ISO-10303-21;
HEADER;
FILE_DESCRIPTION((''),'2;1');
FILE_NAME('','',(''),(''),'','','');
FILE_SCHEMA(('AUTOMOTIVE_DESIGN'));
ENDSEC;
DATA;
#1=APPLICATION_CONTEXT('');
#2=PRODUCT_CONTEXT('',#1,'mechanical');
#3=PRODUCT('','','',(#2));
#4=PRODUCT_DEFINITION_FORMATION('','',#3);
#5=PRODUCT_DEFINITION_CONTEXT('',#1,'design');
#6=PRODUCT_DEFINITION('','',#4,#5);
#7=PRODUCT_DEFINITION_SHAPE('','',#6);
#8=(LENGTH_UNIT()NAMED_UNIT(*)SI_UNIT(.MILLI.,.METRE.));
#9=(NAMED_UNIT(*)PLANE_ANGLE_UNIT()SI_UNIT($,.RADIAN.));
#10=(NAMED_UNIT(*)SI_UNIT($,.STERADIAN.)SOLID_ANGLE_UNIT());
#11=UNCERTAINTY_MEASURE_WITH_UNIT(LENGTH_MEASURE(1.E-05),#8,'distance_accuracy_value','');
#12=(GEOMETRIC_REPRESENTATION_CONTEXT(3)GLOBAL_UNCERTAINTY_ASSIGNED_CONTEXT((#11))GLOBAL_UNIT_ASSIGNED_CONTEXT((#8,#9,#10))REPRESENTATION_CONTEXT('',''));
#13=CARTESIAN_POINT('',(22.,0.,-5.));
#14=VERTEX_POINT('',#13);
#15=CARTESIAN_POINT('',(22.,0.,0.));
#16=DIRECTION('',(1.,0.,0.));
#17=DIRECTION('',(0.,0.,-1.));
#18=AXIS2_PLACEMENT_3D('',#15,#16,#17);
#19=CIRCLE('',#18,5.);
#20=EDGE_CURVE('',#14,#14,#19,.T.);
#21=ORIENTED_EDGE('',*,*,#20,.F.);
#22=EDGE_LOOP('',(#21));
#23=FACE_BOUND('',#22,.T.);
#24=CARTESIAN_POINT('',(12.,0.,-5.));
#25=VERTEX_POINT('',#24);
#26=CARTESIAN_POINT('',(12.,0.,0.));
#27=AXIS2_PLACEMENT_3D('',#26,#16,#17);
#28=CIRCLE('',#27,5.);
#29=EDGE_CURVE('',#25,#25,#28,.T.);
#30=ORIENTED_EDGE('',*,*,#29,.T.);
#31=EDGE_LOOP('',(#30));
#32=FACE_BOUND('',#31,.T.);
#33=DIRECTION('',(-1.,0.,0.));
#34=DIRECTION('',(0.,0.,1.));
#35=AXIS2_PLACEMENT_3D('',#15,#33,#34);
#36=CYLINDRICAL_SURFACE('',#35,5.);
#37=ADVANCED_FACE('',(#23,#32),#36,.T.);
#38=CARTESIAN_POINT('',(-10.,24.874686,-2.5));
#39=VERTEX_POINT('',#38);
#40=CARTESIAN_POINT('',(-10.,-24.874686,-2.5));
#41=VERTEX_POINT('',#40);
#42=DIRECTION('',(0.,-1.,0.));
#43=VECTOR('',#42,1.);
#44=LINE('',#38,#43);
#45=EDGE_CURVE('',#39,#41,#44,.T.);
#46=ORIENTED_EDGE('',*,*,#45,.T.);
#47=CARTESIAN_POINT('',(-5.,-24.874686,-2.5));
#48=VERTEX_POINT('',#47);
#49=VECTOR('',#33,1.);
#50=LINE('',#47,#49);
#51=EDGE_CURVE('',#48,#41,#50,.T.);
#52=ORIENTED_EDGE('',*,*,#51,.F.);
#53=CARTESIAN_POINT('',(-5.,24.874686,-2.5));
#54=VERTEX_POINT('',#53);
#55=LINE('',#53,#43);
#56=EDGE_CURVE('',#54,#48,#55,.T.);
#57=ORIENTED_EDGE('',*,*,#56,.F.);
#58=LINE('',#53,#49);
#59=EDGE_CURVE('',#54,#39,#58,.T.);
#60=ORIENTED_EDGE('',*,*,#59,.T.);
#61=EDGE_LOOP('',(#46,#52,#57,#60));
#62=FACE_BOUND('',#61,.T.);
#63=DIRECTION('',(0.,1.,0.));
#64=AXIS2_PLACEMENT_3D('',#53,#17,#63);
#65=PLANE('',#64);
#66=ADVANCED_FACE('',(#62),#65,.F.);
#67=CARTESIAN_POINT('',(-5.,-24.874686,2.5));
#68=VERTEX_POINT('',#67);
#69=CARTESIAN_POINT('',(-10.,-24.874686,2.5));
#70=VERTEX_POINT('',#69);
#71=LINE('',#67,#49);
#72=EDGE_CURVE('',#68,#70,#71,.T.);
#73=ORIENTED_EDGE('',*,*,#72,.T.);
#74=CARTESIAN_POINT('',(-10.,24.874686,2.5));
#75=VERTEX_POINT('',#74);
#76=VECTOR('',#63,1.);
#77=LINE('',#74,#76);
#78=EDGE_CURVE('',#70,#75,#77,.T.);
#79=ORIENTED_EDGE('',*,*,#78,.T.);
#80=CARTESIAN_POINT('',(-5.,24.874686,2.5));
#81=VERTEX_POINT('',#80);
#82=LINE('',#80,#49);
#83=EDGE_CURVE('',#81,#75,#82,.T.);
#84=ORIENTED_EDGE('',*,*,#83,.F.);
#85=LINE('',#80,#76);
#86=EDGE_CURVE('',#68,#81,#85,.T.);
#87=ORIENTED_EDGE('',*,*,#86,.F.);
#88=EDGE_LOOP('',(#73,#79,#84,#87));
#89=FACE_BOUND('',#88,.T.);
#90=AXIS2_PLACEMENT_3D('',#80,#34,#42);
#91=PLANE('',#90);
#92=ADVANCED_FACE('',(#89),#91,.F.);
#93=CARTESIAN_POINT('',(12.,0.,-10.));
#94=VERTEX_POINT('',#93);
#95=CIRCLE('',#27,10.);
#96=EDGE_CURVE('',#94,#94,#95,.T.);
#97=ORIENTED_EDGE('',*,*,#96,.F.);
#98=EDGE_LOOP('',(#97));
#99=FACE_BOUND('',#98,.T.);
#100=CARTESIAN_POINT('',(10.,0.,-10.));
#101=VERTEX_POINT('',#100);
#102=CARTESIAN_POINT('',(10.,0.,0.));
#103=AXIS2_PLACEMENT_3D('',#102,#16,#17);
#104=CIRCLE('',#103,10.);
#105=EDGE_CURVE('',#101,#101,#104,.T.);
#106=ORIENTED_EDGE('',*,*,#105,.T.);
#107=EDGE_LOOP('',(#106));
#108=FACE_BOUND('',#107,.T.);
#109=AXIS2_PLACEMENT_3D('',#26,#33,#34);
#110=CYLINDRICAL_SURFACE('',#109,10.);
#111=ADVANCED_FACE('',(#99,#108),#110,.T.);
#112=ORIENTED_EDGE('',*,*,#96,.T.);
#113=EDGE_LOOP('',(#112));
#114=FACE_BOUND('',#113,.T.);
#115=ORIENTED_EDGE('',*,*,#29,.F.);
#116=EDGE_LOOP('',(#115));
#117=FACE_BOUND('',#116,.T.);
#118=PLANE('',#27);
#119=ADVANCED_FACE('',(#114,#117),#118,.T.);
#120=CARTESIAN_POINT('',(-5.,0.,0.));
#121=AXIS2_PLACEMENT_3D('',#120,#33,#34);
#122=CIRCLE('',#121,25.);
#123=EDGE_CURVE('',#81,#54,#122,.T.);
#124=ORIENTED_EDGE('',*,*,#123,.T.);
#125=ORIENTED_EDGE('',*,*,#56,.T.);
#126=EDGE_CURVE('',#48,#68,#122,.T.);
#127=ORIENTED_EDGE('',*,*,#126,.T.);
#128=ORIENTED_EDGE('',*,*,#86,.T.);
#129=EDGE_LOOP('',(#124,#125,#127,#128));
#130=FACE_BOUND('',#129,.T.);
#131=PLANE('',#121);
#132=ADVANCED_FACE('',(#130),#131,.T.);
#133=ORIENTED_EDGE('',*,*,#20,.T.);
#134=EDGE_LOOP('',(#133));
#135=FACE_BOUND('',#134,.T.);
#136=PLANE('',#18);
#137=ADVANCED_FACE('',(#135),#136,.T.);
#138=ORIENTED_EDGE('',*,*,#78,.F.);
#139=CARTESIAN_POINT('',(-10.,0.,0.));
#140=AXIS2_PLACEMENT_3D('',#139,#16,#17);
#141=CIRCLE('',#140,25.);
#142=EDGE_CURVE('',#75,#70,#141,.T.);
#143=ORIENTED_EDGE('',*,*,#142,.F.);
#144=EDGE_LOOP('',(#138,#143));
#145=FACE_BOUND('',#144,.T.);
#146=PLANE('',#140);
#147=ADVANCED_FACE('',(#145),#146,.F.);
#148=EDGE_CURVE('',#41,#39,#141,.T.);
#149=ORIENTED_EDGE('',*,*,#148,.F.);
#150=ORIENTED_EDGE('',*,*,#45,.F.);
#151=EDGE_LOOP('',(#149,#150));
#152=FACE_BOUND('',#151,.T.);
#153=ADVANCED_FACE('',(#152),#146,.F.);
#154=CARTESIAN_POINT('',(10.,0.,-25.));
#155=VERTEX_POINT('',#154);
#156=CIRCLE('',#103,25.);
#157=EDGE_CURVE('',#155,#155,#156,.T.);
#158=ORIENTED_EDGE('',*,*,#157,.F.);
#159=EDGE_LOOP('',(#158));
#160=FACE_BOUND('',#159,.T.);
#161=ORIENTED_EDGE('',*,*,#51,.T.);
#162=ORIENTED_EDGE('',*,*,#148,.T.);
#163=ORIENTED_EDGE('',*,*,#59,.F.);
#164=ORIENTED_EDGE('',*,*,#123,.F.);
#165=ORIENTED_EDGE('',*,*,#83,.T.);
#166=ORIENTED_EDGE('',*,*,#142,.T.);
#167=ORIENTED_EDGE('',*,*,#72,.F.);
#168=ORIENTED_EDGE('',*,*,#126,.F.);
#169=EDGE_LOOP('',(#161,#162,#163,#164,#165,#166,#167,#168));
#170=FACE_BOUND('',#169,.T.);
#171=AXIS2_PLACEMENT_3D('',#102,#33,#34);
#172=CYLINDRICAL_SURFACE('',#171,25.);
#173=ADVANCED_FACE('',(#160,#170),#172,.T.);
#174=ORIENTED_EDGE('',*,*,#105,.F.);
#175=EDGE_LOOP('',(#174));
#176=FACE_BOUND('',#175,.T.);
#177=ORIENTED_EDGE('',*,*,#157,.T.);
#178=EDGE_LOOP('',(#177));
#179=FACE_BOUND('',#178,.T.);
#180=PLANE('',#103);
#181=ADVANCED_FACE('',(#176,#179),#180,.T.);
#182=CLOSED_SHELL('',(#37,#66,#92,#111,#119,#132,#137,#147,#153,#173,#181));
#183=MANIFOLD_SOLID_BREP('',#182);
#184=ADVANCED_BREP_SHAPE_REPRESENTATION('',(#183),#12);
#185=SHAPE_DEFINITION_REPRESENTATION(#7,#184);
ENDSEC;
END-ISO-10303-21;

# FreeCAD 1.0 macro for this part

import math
import FreeCAD as App
import Part
import Sketcher
from FreeCAD import Vector

doc = App.newDocument("Part")
body = doc.addObject("PartDesign::Body", "Body")

# Sketch on YZ plane
sketch1 = doc.addObject("Sketcher::SketchObject", "Sketch")
body.addObject(sketch1)
sketch1.AttachmentSupport = (doc.YZ_Plane, [""])
sketch1.MapMode = "FlatFace"
sketch1.addGeometry(Part.Circle(Vector(0, 0, 0), Vector(0, 0, 1), 25), False)
sketch1.addConstraint(Sketcher.Constraint("Coincident", 0, 3, -1, 1))
sketch1.addConstraint(Sketcher.Constraint("Diameter", 0, 50.0))
pad1 = doc.addObject("PartDesign::Pad", "Pad")
body.addObject(pad1)
pad1.Profile = sketch1
pad1.Length = 20
pad1.Midplane = True

# Sketch on YZ plane
sketch2 = doc.addObject("Sketcher::SketchObject", "Sketch001")
body.addObject(sketch2)
sketch2.AttachmentSupport = (doc.YZ_Plane, [""])
sketch2.MapMode = "FlatFace"
sketch2.AttachmentOffset = App.Placement(Vector(0, 0, 10), App.Rotation())
sketch2.addGeometry(Part.Circle(Vector(0, 0, 0), Vector(0, 0, 1), 5), False)
sketch2.addConstraint(Sketcher.Constraint("Coincident", 0, 3, -1, 1))
sketch2.addConstraint(Sketcher.Constraint("Diameter", 0, 10.0))
pad2 = doc.addObject("PartDesign::Pad", "Pad001")
body.addObject(pad2)
pad2.Profile = sketch2
pad2.Length = 12

# Sketch on YZ plane
sketch3 = doc.addObject("Sketcher::SketchObject", "Sketch002")
body.addObject(sketch3)
sketch3.AttachmentSupport = (doc.YZ_Plane, [""])
sketch3.MapMode = "FlatFace"
sketch3.AttachmentOffset = App.Placement(Vector(0, 0, -5), App.Rotation())
sketch3.addGeometry(Part.LineSegment(Vector(-25, 2, 0), Vector(25, 2, 0)), False)
sketch3.addGeometry(Part.ArcOfCircle(Part.Circle(Vector(0, 0, 0), Vector(0, 0, 1), 25), math.radians(-5.74), math.radians(5.74)), False)
sketch3.addGeometry(Part.LineSegment(Vector(25, -2, 0), Vector(-25, -2, 0)), False)
sketch3.addGeometry(Part.ArcOfCircle(Part.Circle(Vector(0, 0, 0), Vector(0, 0, 1), 25), math.radians(174.26), math.radians(185.74)), False)
sketch3.addConstraint(Sketcher.Constraint("Coincident", 0, 2, 1, 2))
sketch3.addConstraint(Sketcher.Constraint("Coincident", 1, 1, 2, 1))
sketch3.addConstraint(Sketcher.Constraint("Coincident", 2, 2, 3, 2))
sketch3.addConstraint(Sketcher.Constraint("Coincident", 3, 1, 0, 1))
sketch3.addConstraint(Sketcher.Constraint("Horizontal", 0))
sketch3.addConstraint(Sketcher.Constraint("Horizontal", 2))
sketch3.addConstraint(Sketcher.Constraint("Coincident", 1, 3, -1, 1))
sketch3.addConstraint(Sketcher.Constraint("Coincident", 3, 3, -1, 1))
sketch3.addConstraint(Sketcher.Constraint("Equal", 1, 3))
sketch3.addConstraint(Sketcher.Constraint("Vertical", 0, 2, 1, 1))
sketch3.addConstraint(Sketcher.Constraint("Radius", 1, 25.0))
sketch3.addConstraint(Sketcher.Constraint("DistanceY", 1, 1, 0, 2, 5.0))
pocket1 = doc.addObject("PartDesign::Pocket", "Pocket")
body.addObject(pocket1)
pocket1.Profile = sketch3
pocket1.Length = 5

# Sketch on YZ plane
sketch4 = doc.addObject("Sketcher::SketchObject", "Sketch003")
body.addObject(sketch4)
sketch4.AttachmentSupport = (doc.YZ_Plane, [""])
sketch4.MapMode = "FlatFace"
sketch4.AttachmentOffset = App.Placement(Vector(0, 0, 10), App.Rotation())
sketch4.addGeometry(Part.Circle(Vector(0, 0, 0), Vector(0, 0, 1), 10), False)
sketch4.addConstraint(Sketcher.Constraint("Coincident", 0, 3, -1, 1))
sketch4.addConstraint(Sketcher.Constraint("Diameter", 0, 20.0))
pad3 = doc.addObject("PartDesign::Pad", "Pad002")
body.addObject(pad3)
pad3.Profile = sketch4
pad3.Length = 2

doc.recompute()
